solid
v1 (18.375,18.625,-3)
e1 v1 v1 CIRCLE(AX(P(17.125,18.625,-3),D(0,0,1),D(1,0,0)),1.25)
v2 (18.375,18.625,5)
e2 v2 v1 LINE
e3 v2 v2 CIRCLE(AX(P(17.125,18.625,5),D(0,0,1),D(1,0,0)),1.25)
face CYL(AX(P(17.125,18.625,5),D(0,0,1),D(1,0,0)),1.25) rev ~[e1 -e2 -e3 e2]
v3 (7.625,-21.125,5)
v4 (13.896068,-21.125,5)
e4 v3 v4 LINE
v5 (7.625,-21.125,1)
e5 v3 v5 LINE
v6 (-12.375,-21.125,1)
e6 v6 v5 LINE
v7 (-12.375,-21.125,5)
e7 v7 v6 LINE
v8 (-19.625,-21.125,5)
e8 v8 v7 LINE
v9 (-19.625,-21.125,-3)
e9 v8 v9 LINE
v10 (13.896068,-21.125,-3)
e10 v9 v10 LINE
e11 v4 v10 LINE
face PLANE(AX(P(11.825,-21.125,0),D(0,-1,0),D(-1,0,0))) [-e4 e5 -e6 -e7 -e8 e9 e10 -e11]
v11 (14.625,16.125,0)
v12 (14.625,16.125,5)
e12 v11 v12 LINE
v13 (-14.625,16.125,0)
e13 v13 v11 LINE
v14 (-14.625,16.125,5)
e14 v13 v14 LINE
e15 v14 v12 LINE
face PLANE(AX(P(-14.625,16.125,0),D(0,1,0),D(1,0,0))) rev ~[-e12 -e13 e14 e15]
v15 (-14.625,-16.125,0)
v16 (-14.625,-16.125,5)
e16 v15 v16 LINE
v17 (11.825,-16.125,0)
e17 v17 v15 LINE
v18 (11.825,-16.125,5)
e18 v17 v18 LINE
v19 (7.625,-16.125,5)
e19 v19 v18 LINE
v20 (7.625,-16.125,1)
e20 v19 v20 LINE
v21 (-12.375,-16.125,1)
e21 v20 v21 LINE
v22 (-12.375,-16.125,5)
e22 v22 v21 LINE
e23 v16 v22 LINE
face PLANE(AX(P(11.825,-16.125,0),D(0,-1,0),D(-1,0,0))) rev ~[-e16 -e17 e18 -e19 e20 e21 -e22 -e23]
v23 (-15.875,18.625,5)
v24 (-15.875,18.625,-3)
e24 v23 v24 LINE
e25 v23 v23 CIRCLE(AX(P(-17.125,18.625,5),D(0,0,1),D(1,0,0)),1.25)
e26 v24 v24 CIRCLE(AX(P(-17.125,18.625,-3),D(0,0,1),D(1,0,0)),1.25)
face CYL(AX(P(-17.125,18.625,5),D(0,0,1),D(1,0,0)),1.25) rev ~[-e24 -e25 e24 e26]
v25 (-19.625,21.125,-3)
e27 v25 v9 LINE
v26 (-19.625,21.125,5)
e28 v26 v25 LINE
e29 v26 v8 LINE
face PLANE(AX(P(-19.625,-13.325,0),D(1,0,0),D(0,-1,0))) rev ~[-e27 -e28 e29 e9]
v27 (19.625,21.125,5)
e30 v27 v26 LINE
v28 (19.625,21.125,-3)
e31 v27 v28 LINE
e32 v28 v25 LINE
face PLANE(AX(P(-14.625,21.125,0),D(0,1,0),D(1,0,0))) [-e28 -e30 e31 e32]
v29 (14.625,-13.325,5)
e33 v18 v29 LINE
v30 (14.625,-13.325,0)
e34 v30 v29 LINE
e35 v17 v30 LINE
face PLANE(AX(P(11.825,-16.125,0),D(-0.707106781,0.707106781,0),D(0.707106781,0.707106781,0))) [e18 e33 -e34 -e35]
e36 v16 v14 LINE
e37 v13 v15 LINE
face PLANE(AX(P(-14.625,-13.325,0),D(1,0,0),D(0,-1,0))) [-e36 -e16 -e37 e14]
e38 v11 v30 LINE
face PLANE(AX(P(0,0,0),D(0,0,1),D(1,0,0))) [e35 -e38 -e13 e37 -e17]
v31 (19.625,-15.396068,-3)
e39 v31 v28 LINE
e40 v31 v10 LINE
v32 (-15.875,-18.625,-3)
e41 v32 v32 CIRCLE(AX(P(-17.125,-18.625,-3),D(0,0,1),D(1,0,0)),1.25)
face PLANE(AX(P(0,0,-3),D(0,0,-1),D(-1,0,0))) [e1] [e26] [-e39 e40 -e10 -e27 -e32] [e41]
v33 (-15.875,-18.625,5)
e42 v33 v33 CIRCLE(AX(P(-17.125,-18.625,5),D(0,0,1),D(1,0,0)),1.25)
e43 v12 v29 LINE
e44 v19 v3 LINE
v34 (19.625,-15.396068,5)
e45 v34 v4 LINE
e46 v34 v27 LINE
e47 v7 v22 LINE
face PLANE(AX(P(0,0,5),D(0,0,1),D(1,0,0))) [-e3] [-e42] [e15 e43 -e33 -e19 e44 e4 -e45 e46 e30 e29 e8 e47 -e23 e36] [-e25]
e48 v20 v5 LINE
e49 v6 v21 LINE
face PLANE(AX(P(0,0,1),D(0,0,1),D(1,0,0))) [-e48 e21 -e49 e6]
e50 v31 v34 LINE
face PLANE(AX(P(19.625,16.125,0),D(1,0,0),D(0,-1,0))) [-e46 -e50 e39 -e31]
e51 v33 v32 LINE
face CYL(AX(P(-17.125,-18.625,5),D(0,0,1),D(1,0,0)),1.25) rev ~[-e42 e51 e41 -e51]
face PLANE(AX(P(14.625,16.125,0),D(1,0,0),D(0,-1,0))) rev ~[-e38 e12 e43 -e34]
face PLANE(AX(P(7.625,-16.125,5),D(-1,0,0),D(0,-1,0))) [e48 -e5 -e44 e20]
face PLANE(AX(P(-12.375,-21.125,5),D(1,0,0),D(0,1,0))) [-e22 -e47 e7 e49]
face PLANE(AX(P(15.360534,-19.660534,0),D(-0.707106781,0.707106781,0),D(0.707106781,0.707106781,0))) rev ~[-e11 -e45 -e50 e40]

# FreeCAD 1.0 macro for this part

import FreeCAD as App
import Part
import Sketcher
from FreeCAD import Vector


def faces_at(feature, points):
    """Names of the faces that lie closest to the given points."""
    faces = feature.Shape.Faces
    near = lambda p: min(range(len(faces)), key=lambda i: faces[i].distToShape(Part.Vertex(*p))[0])
    return sorted({f"Face{near(p) + 1}" for p in points})

doc = App.newDocument("Part")
params = doc.addObject("Spreadsheet::Sheet", "Params")
for row, (alias, value) in enumerate([
    ("sketch1_width", "29.25 mm"),
    ("sketch1_height", "32.25 mm"),
    ("pad1_length", "5 mm"),
    ("thickness_wall", "5 mm"),
    ("sketch2_diameter", "2.5 mm"),
    ("sketch3_width", "20 mm"),
    ("sketch3_height", "5 mm"),
    ("pocket2_length", "4 mm"),
    ("sketch4_width", "39.25 mm"),
    ("sketch4_height", "42.25 mm"),
    ("pocket3_length", "2 mm"),
], start=1):
    params.set(f"A{row}", alias)
    params.set(f"B{row}", "=" + value)
    params.setAlias(f"B{row}", alias)

body = doc.addObject("PartDesign::Body", "Body")

sketch1 = body.newObject("Sketcher::SketchObject", "Sketch")
sketch1.AttachmentSupport = (doc.getObject("XY_Plane"), [""])
sketch1.MapMode = "FlatFace"
sketch1.addGeometry(Part.LineSegment(Vector(-14.625, -16.125, 0), Vector(11.825, -16.125, 0)), False)
sketch1.addGeometry(Part.LineSegment(Vector(11.825, -16.125, 0), Vector(14.625, -13.325, 0)), False)
sketch1.addGeometry(Part.LineSegment(Vector(14.625, -13.325, 0), Vector(14.625, 16.125, 0)), False)
sketch1.addGeometry(Part.LineSegment(Vector(14.625, 16.125, 0), Vector(-14.625, 16.125, 0)), False)
sketch1.addGeometry(Part.LineSegment(Vector(-14.625, 16.125, 0), Vector(-14.625, -16.125, 0)), False)
sketch1.addConstraint(Sketcher.Constraint("Coincident", 0, 2, 1, 1))
sketch1.addConstraint(Sketcher.Constraint("Coincident", 1, 2, 2, 1))
sketch1.addConstraint(Sketcher.Constraint("Coincident", 2, 2, 3, 1))
sketch1.addConstraint(Sketcher.Constraint("Coincident", 3, 2, 4, 1))
sketch1.addConstraint(Sketcher.Constraint("Coincident", 4, 2, 0, 1))
sketch1.addConstraint(Sketcher.Constraint("Horizontal", 0))
sketch1.addConstraint(Sketcher.Constraint("Vertical", 2))
sketch1.addConstraint(Sketcher.Constraint("Horizontal", 3))
sketch1.addConstraint(Sketcher.Constraint("Vertical", 4))
sketch1.addConstraint(Sketcher.Constraint("Symmetric", 2, 2, 4, 2, -1, 1))
sketch1.addConstraint(Sketcher.Constraint("DistanceX", 3, 2, 3, 1, 29.25))
sketch1.addConstraint(Sketcher.Constraint("DistanceY", 4, 2, 4, 1, 32.25))
sketch1.addConstraint(Sketcher.Constraint("DistanceX", 0, 2, 1, 2, 2.8))
sketch1.addConstraint(Sketcher.Constraint("DistanceY", 0, 2, 1, 2, 2.8))
sketch1.setExpression("Constraints[10]", "Params.sketch1_width")
sketch1.setExpression("Constraints[11]", "Params.sketch1_height")
pad1 = body.newObject("PartDesign::Pad", "Pad")
pad1.Profile = sketch1
pad1.setExpression("Length", "Params.pad1_length")
doc.recompute()

thickness = body.newObject("PartDesign::Thickness", "Thickness")
thickness.Base = (pad1, faces_at(pad1, [(-4.875, -3.508, 5)]))
thickness.setExpression("Value", "Params.thickness_wall")
thickness.Reversed = False
thickness.Join = "Intersection"

sketch2 = body.newObject("Sketcher::SketchObject", "Sketch001")
sketch2.AttachmentSupport = (doc.getObject("XY_Plane"), [""])
sketch2.MapMode = "FlatFace"
sketch2.AttachmentOffset = App.Placement(Vector(0, 0, 5), App.Rotation())
sketch2.addGeometry(Part.Circle(Vector(-17.125, 18.625, 0), Vector(0, 0, 1), 1.25), False)
sketch2.addGeometry(Part.Circle(Vector(17.125, 18.625, 0), Vector(0, 0, 1), 1.25), False)
sketch2.addGeometry(Part.Circle(Vector(-17.125, -18.625, 0), Vector(0, 0, 1), 1.25), False)
sketch2.addConstraint(Sketcher.Constraint("Equal", 0, 1))
sketch2.addConstraint(Sketcher.Constraint("Equal", 1, 2))
sketch2.addConstraint(Sketcher.Constraint("Symmetric", 1, 3, 2, 3, -1, 1))
sketch2.addConstraint(Sketcher.Constraint("Symmetric", 0, 3, 1, 3, -2))
sketch2.addConstraint(Sketcher.Constraint("Diameter", 0, 2.5))
sketch2.addConstraint(Sketcher.Constraint("DistanceX", 0, 3, 1, 3, 34.25))
sketch2.addConstraint(Sketcher.Constraint("DistanceY", 2, 3, 0, 3, 37.25))
sketch2.setExpression("Constraints[4]", "Params.sketch2_diameter")
pocket1 = body.newObject("PartDesign::Pocket", "Pocket")
pocket1.Profile = sketch2
pocket1.Type = "ThroughAll"

sketch3 = body.newObject("Sketcher::SketchObject", "Sketch002")
sketch3.AttachmentSupport = (doc.getObject("XY_Plane"), [""])
sketch3.MapMode = "FlatFace"
sketch3.AttachmentOffset = App.Placement(Vector(0, 0, 5), App.Rotation())
sketch3.addGeometry(Part.LineSegment(Vector(-12.375, -16.125, 0), Vector(-12.375, -21.125, 0)), False)
sketch3.addGeometry(Part.LineSegment(Vector(-12.375, -21.125, 0), Vector(7.625, -21.125, 0)), False)
sketch3.addGeometry(Part.LineSegment(Vector(7.625, -21.125, 0), Vector(7.625, -16.125, 0)), False)
sketch3.addGeometry(Part.LineSegment(Vector(7.625, -16.125, 0), Vector(-12.375, -16.125, 0)), False)
sketch3.addConstraint(Sketcher.Constraint("Coincident", 0, 2, 1, 1))
sketch3.addConstraint(Sketcher.Constraint("Coincident", 1, 2, 2, 1))
sketch3.addConstraint(Sketcher.Constraint("Coincident", 2, 2, 3, 1))
sketch3.addConstraint(Sketcher.Constraint("Coincident", 3, 2, 0, 1))
sketch3.addConstraint(Sketcher.Constraint("Vertical", 0))
sketch3.addConstraint(Sketcher.Constraint("Horizontal", 1))
sketch3.addConstraint(Sketcher.Constraint("Vertical", 2))
sketch3.addConstraint(Sketcher.Constraint("Horizontal", 3))
sketch3.addConstraint(Sketcher.Constraint("DistanceX", 1, 1, 1, 2, 20.0))
sketch3.addConstraint(Sketcher.Constraint("DistanceY", 0, 2, 0, 1, 5.0))
sketch3.addConstraint(Sketcher.Constraint("DistanceX", 0, 2, -1, 1, 12.375))
sketch3.addConstraint(Sketcher.Constraint("DistanceY", 0, 2, -1, 1, 21.125))
sketch3.setExpression("Constraints[8]", "Params.sketch3_width")
sketch3.setExpression("Constraints[9]", "Params.sketch3_height")
pocket2 = body.newObject("PartDesign::Pocket", "Pocket001")
pocket2.Profile = sketch3
pocket2.setExpression("Length", "Params.pocket2_length")

sketch4 = body.newObject("Sketcher::SketchObject", "Sketch003")
sketch4.AttachmentSupport = (doc.getObject("XY_Plane"), [""])
sketch4.MapMode = "FlatFace"
sketch4.AttachmentOffset = App.Placement(Vector(0, 0, -5), App.Rotation())
sketch4.addGeometry(Part.LineSegment(Vector(-19.625, 21.125, 0), Vector(19.625, 21.125, 0)), False)
sketch4.addGeometry(Part.LineSegment(Vector(19.625, 21.125, 0), Vector(19.625, -21.125, 0)), False)
sketch4.addGeometry(Part.LineSegment(Vector(19.625, -21.125, 0), Vector(-19.625, -21.125, 0)), False)
sketch4.addGeometry(Part.LineSegment(Vector(-19.625, -21.125, 0), Vector(-19.625, 21.125, 0)), False)
sketch4.addConstraint(Sketcher.Constraint("Coincident", 0, 2, 1, 1))
sketch4.addConstraint(Sketcher.Constraint("Coincident", 1, 2, 2, 1))
sketch4.addConstraint(Sketcher.Constraint("Coincident", 2, 2, 3, 1))
sketch4.addConstraint(Sketcher.Constraint("Coincident", 3, 2, 0, 1))
sketch4.addConstraint(Sketcher.Constraint("Horizontal", 0))
sketch4.addConstraint(Sketcher.Constraint("Vertical", 1))
sketch4.addConstraint(Sketcher.Constraint("Horizontal", 2))
sketch4.addConstraint(Sketcher.Constraint("Vertical", 3))
sketch4.addConstraint(Sketcher.Constraint("Symmetric", 0, 2, 2, 2, -1, 1))
sketch4.addConstraint(Sketcher.Constraint("DistanceX", 0, 1, 0, 2, 39.25))
sketch4.addConstraint(Sketcher.Constraint("DistanceY", 1, 2, 1, 1, 42.25))
sketch4.setExpression("Constraints[9]", "Params.sketch4_width")
sketch4.setExpression("Constraints[10]", "Params.sketch4_height")
pocket3 = body.newObject("PartDesign::Pocket", "Pocket002")
pocket3.Profile = sketch4
pocket3.setExpression("Length", "Params.pocket3_length")
pocket3.Reversed = True

doc.recompute()
